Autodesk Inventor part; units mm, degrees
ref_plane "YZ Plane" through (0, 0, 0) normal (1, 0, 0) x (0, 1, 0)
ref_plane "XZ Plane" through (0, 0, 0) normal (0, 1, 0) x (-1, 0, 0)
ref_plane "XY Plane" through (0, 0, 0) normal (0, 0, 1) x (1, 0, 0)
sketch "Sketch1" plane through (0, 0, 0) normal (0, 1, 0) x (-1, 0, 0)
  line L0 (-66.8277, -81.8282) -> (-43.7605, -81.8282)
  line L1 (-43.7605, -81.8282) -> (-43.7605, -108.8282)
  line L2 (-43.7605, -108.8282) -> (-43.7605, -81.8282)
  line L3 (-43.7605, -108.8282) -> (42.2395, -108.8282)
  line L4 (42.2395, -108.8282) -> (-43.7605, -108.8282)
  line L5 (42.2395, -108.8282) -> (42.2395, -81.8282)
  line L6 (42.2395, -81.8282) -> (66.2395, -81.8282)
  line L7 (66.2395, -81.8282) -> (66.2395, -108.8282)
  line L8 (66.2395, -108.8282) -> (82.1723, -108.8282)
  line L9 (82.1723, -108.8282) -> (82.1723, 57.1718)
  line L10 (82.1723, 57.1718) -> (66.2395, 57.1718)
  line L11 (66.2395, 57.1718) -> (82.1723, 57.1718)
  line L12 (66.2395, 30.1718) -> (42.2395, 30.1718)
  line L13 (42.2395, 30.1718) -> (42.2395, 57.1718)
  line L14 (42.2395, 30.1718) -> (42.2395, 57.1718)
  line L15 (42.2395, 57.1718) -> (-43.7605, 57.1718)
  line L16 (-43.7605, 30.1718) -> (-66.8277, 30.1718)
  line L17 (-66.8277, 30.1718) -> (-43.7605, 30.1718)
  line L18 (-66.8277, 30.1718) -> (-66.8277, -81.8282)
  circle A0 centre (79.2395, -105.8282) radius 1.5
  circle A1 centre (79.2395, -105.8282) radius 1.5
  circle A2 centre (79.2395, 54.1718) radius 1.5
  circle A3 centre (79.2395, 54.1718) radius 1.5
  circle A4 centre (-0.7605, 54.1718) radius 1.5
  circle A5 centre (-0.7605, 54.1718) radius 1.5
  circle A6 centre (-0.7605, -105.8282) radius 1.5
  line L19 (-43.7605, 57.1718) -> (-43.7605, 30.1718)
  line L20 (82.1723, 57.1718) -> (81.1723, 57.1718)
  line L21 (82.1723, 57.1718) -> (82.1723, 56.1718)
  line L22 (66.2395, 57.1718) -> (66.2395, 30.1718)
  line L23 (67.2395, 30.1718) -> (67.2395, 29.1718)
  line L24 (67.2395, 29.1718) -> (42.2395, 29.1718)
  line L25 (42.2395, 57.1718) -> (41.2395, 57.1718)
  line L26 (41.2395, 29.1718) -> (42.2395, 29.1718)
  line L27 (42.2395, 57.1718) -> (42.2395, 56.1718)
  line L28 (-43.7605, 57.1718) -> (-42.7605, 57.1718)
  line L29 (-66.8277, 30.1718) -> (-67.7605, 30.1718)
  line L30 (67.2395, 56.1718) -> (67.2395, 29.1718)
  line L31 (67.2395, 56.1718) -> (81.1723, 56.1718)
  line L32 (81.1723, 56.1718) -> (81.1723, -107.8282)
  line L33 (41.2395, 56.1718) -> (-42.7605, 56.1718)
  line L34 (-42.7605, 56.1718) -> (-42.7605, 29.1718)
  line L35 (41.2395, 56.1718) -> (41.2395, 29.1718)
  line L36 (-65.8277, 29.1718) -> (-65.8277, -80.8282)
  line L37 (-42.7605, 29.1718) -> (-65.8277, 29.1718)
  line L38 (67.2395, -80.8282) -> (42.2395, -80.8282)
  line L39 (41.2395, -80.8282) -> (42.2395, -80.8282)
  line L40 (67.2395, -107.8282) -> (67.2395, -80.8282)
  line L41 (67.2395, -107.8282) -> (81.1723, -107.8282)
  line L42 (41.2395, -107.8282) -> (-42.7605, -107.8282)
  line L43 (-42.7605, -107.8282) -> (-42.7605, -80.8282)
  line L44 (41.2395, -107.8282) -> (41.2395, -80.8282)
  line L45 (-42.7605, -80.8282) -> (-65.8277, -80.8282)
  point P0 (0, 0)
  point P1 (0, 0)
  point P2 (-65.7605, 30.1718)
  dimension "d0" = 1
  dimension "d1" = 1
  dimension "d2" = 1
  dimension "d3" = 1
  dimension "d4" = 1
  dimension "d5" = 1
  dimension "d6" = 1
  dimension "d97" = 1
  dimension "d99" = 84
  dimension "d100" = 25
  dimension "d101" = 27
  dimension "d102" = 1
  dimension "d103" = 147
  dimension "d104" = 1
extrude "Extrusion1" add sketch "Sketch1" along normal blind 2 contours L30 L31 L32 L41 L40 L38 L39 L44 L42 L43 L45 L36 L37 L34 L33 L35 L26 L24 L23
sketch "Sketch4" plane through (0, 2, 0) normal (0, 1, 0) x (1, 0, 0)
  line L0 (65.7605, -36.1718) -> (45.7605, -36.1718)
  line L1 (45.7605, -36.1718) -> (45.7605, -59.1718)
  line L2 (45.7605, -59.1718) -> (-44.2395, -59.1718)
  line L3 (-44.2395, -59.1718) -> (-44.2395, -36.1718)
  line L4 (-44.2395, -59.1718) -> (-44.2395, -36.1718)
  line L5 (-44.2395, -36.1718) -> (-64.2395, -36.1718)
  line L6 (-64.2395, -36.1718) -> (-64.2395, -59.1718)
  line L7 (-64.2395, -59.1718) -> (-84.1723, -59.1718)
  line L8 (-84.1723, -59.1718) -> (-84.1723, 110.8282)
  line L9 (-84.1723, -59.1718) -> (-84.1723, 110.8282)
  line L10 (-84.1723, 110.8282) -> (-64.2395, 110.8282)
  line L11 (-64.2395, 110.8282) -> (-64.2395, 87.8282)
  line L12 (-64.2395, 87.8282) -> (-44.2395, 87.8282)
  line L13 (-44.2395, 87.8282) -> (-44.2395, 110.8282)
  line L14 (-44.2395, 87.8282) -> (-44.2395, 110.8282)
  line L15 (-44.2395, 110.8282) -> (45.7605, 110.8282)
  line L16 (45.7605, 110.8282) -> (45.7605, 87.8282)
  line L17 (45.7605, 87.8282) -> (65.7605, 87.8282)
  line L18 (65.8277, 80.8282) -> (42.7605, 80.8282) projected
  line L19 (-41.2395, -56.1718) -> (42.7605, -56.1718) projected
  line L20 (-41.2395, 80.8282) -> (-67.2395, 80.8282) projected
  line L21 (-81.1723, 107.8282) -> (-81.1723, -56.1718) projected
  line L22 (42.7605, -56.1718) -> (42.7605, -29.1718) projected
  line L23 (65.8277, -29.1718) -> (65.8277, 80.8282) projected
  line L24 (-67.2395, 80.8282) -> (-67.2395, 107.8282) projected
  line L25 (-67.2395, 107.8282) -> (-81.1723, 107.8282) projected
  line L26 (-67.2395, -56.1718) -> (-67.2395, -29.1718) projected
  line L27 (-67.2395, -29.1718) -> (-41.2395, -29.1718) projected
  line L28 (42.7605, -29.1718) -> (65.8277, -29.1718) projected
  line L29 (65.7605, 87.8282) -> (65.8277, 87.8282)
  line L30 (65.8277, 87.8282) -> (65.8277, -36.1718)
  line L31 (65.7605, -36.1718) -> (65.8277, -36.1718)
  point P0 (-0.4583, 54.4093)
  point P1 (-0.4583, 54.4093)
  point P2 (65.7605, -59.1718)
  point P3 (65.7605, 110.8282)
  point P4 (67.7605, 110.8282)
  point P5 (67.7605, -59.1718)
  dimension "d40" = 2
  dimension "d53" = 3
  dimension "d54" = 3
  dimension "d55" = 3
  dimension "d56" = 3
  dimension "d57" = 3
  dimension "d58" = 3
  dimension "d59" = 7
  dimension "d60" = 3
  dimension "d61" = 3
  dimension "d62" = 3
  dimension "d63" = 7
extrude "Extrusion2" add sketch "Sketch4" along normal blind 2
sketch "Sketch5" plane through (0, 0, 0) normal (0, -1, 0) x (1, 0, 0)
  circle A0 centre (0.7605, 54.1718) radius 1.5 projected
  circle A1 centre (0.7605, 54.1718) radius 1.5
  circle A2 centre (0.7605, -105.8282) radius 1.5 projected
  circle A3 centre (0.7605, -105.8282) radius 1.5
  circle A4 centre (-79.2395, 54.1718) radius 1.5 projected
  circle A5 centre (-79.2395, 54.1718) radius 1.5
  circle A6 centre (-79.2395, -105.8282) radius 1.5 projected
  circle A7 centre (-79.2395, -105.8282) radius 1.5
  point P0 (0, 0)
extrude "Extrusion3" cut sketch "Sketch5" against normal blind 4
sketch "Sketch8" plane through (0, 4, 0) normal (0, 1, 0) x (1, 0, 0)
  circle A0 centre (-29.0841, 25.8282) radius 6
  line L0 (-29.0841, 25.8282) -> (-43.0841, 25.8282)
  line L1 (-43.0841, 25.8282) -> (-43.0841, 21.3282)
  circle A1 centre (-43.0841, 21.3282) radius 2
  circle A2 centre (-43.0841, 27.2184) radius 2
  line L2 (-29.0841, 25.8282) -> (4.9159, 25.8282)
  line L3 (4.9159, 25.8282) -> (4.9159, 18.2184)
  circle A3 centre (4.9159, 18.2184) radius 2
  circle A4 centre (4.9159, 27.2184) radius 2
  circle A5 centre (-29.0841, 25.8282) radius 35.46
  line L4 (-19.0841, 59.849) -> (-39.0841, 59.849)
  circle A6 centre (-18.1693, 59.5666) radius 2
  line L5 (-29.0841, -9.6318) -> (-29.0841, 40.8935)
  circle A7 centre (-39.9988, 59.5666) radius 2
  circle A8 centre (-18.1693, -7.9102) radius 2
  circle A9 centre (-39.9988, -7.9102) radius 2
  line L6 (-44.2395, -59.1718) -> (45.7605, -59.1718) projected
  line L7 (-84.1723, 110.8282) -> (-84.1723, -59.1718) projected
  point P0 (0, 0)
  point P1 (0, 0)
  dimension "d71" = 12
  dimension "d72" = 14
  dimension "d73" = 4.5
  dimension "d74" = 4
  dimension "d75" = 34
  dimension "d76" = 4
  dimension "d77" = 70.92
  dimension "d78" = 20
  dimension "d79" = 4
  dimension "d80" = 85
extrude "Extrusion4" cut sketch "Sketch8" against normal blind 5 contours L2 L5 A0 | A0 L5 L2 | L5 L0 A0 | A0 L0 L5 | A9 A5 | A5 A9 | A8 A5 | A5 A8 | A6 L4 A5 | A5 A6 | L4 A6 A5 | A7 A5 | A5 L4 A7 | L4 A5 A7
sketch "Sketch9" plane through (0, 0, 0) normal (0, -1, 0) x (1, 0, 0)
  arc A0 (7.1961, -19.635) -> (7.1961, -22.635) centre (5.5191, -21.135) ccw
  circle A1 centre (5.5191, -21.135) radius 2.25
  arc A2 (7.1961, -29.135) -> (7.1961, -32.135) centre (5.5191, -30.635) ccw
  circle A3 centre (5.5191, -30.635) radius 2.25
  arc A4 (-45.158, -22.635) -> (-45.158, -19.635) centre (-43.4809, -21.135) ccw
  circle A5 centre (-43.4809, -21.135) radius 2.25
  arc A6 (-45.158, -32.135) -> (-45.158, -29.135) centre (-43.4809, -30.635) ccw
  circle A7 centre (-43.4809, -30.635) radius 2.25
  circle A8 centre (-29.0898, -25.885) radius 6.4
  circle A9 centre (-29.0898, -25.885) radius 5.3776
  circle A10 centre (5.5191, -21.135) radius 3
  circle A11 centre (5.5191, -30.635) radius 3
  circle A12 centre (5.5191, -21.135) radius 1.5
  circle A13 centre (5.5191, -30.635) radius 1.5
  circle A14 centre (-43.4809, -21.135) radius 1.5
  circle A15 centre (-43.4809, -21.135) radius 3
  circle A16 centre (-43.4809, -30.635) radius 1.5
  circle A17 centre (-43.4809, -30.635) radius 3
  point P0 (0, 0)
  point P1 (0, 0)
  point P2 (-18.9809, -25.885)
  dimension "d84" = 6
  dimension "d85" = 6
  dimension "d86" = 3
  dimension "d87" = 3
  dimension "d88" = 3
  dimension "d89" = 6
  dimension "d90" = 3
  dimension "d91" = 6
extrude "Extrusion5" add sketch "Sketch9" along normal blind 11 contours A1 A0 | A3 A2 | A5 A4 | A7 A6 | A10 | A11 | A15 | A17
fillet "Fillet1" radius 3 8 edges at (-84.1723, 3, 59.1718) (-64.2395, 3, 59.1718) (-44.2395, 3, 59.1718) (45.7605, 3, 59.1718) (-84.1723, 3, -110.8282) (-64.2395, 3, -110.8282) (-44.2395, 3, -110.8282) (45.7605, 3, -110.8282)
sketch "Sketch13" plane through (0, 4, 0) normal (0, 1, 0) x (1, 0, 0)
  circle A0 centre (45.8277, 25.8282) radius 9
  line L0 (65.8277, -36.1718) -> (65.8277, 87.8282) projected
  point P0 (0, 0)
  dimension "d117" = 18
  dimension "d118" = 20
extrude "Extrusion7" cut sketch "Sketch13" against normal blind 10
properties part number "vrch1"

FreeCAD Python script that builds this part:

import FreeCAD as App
import Part
import Sketcher
from FreeCAD import Vector
Q = App.Units.Quantity


def edges_at(feature, points):
    """Names of the edges that pass closest to the given points."""
    edges = feature.Shape.Edges
    near = lambda p: min(range(len(edges)), key=lambda i: edges[i].distToShape(Part.Vertex(*p))[0])
    return sorted({f"Edge{near(p) + 1}" for p in points})


def add_polygon(sketch, points):
    """Adds a closed chain of lines whose ends are joined by coincident constraints."""
    first, n = sketch.GeometryCount, len(points)
    for a, b in zip(points, points[1:] + points[:1]):
        sketch.addGeometry(Part.LineSegment(App.Vector(*a, 0), App.Vector(*b, 0)), False)
    for i in range(n):
        sketch.addConstraint(Sketcher.Constraint("Coincident", first + i, 2, first + (i + 1) % n, 1))

doc = App.newDocument("Part")
body = doc.addObject("PartDesign::Body", "Body")

# Sketch on XZ plane
sketch1 = body.newObject("Sketcher::SketchObject", "Sketch")
sketch1.AttachmentSupport = (doc.getObject("XZ_Plane"), [""])
sketch1.MapMode = "FlatFace"
add_polygon(sketch1, [(-67.2395, 56.1718), (-67.2395, 29.1718), (-41.2395, 29.1718), (-41.2395, 56.1718), (42.7605, 56.1718), (42.7605, 29.1718), (65.8277, 29.1718), (65.8277, -80.8282), (42.7605, -80.8282), (42.7605, -107.8282), (-41.2395, -107.8282), (-41.2395, -80.8282), (-67.2395, -80.8282), (-67.2395, -107.8282), (-81.1723, -107.8282), (-81.1723, 56.1718)])  # lines 0-15
sketch1.addGeometry(Part.Circle(Vector(0.7605, -105.8282, 0), Vector(0, 0, 1), 1.5), False)  # 16
sketch1.addGeometry(Part.Circle(Vector(-79.2395, -105.8282, 0), Vector(0, 0, 1), 1.5), False)  # 17
sketch1.addGeometry(Part.Circle(Vector(0.7605, 54.1718, 0), Vector(0, 0, 1), 1.5), False)  # 18
sketch1.addGeometry(Part.Circle(Vector(-79.2395, 54.1718, 0), Vector(0, 0, 1), 1.5), False)  # 19
sketch1.addConstraint(Sketcher.Constraint("Vertical", 0))
sketch1.addConstraint(Sketcher.Constraint("Horizontal", 1))
sketch1.addConstraint(Sketcher.Constraint("Vertical", 2))
sketch1.addConstraint(Sketcher.Constraint("Horizontal", 3))
sketch1.addConstraint(Sketcher.Constraint("Vertical", 4))
sketch1.addConstraint(Sketcher.Constraint("Horizontal", 5))
sketch1.addConstraint(Sketcher.Constraint("Vertical", 6))
sketch1.addConstraint(Sketcher.Constraint("Horizontal", 7))
sketch1.addConstraint(Sketcher.Constraint("Vertical", 8))
sketch1.addConstraint(Sketcher.Constraint("Horizontal", 9))
sketch1.addConstraint(Sketcher.Constraint("Vertical", 10))
sketch1.addConstraint(Sketcher.Constraint("Horizontal", 11))
sketch1.addConstraint(Sketcher.Constraint("Vertical", 12))
sketch1.addConstraint(Sketcher.Constraint("Horizontal", 13))
sketch1.addConstraint(Sketcher.Constraint("Vertical", 14))
sketch1.addConstraint(Sketcher.Constraint("Horizontal", 15))
sketch1.addConstraint(Sketcher.Constraint("Equal", 16, 17))
sketch1.addConstraint(Sketcher.Constraint("Equal", 17, 18))
sketch1.addConstraint(Sketcher.Constraint("Equal", 18, 19))
sketch1.addConstraint(Sketcher.Constraint("Horizontal", 16, 3, 17, 3))
sketch1.addConstraint(Sketcher.Constraint("Horizontal", 18, 3, 19, 3))
sketch1.addConstraint(Sketcher.Constraint("Horizontal", 1, 2, 4, 2))
sketch1.addConstraint(Sketcher.Constraint("Horizontal", 7, 2, 10, 2))
sketch1.addConstraint(Sketcher.Constraint("Horizontal", 9, 2, 12, 2))
sketch1.addConstraint(Sketcher.Constraint("Horizontal", 3, 2, 14, 2))
sketch1.addConstraint(Sketcher.Constraint("Vertical", 16, 3, 18, 3))
sketch1.addConstraint(Sketcher.Constraint("Vertical", 17, 3, 19, 3))
sketch1.addConstraint(Sketcher.Constraint("Vertical", 4, 2, 7, 2))
sketch1.addConstraint(Sketcher.Constraint("Vertical", 2, 2, 9, 2))
sketch1.addConstraint(Sketcher.Constraint("Vertical", 0, 2, 11, 2))
sketch1.addConstraint(Sketcher.Constraint("Equal", 4, 8))
sketch1.addConstraint(Sketcher.Constraint("DistanceX", 3, 1, 3, 2, Q("84 mm")))
sketch1.addConstraint(Sketcher.Constraint("DistanceY", 0, 2, 0, 1, Q("27 mm")))
sketch1.addConstraint(Sketcher.Constraint("Diameter", 16, Q("3 mm")))
sketch1.addConstraint(Sketcher.Constraint("DistanceY", 0, 2, 19, 3, Q("25 mm")))
sketch1.addConstraint(Sketcher.Constraint("DistanceY", 16, 3, 6, 2, Q("25 mm")))
sketch1.addConstraint(Sketcher.Constraint("DistanceX", 1, 1, 1, 2, Q("26 mm")))
sketch1.addConstraint(Sketcher.Constraint("DistanceY", 6, 2, 6, 1, Q("110 mm")))
sketch1.addConstraint(Sketcher.Constraint("DistanceX", 17, 3, 16, 3, Q("80 mm")))
sketch1.addConstraint(Sketcher.Constraint("DistanceX", 19, 3, 0, 2, Q("12 mm")))
sketch1.addConstraint(Sketcher.Constraint("DistanceX", 5, 1, 5, 2, Q("23.0672 mm")))
sketch1.addConstraint(Sketcher.Constraint("DistanceX", 13, 2, 13, 1, Q("13.9328 mm")))
sketch1.addConstraint(Sketcher.Constraint("DistanceX", -1, 1, 16, 3, Q("0.7605 mm")))
sketch1.addConstraint(Sketcher.Constraint("DistanceY", 16, 3, -1, 1, Q("105.8282 mm")))
pad1 = body.newObject("PartDesign::Pad", "Pad")
pad1.Profile = sketch1
pad1.Length = 2
pad1.Reversed = True

# Sketch on XZ plane
sketch2 = body.newObject("Sketcher::SketchObject", "Sketch001")
sketch2.AttachmentSupport = (doc.getObject("XZ_Plane"), [""])
sketch2.MapMode = "FlatFace"
sketch2.AttachmentOffset = App.Placement(Vector(0, 0, -2), App.Rotation())
add_polygon(sketch2, [(45.7605, 36.1718), (65.8277, 36.1718), (65.8277, -87.8282), (45.7605, -87.8282), (45.7605, -110.8282), (-44.2395, -110.8282), (-44.2395, -87.8282), (-64.2395, -87.8282), (-64.2395, -110.8282), (-84.1723, -110.8282), (-84.1723, 59.1718), (-64.2395, 59.1718), (-64.2395, 36.1718), (-44.2395, 36.1718), (-44.2395, 59.1718), (45.7605, 59.1718)])  # lines 0-15
sketch2.addConstraint(Sketcher.Constraint("Horizontal", 0))
sketch2.addConstraint(Sketcher.Constraint("Vertical", 1))
sketch2.addConstraint(Sketcher.Constraint("Horizontal", 2))
sketch2.addConstraint(Sketcher.Constraint("Vertical", 3))
sketch2.addConstraint(Sketcher.Constraint("Horizontal", 4))
sketch2.addConstraint(Sketcher.Constraint("Vertical", 5))
sketch2.addConstraint(Sketcher.Constraint("Horizontal", 6))
sketch2.addConstraint(Sketcher.Constraint("Vertical", 7))
sketch2.addConstraint(Sketcher.Constraint("Horizontal", 8))
sketch2.addConstraint(Sketcher.Constraint("Vertical", 9))
sketch2.addConstraint(Sketcher.Constraint("Horizontal", 10))
sketch2.addConstraint(Sketcher.Constraint("Vertical", 11))
sketch2.addConstraint(Sketcher.Constraint("Horizontal", 12))
sketch2.addConstraint(Sketcher.Constraint("Vertical", 13))
sketch2.addConstraint(Sketcher.Constraint("Horizontal", 14))
sketch2.addConstraint(Sketcher.Constraint("Vertical", 15))
sketch2.addConstraint(Sketcher.Constraint("Horizontal", 2, 2, 5, 2))
sketch2.addConstraint(Sketcher.Constraint("Horizontal", 4, 2, 7, 2))
sketch2.addConstraint(Sketcher.Constraint("Horizontal", 0, 2, 11, 2))
sketch2.addConstraint(Sketcher.Constraint("Horizontal", 10, 2, 13, 2))
sketch2.addConstraint(Sketcher.Constraint("Vertical", 7, 2, 10, 2))
sketch2.addConstraint(Sketcher.Constraint("Vertical", 5, 2, 12, 2))
sketch2.addConstraint(Sketcher.Constraint("Vertical", 3, 2, 14, 2))
sketch2.addConstraint(Sketcher.Constraint("Equal", 7, 11))
sketch2.addConstraint(Sketcher.Constraint("DistanceX", 4, 2, 4, 1, Q("90 mm")))
sketch2.addConstraint(Sketcher.Constraint("DistanceX", 6, 2, 6, 1, Q("20 mm")))
sketch2.addConstraint(Sketcher.Constraint("DistanceY", 1, 2, 1, 1, Q("124 mm")))
sketch2.addConstraint(Sketcher.Constraint("DistanceY", 3, 2, 3, 1, Q("23 mm")))
sketch2.addConstraint(Sketcher.Constraint("DistanceX", 9, 2, 0, 2, Q("150 mm")))
sketch2.addConstraint(Sketcher.Constraint("DistanceX", 0, 1, 0, 2, Q("20.0672 mm")))
sketch2.addConstraint(Sketcher.Constraint("DistanceX", -1, 1, 0, 2, Q("65.8277 mm")))
sketch2.addConstraint(Sketcher.Constraint("DistanceY", -1, 1, 0, 2, Q("36.1718 mm")))
pad2 = body.newObject("PartDesign::Pad", "Pad001")
pad2.Profile = sketch2
pad2.Length = 2
pad2.Reversed = True

# Sketch on XZ plane
sketch3 = body.newObject("Sketcher::SketchObject", "Sketch002")
sketch3.AttachmentSupport = (doc.getObject("XZ_Plane"), [""])
sketch3.MapMode = "FlatFace"
sketch3.addGeometry(Part.Circle(Vector(0.7605, 54.1718, 0), Vector(0, 0, 1), 1.5), False)
sketch3.addGeometry(Part.Circle(Vector(0.7605, -105.8282, 0), Vector(0, 0, 1), 1.5), False)
sketch3.addGeometry(Part.Circle(Vector(-79.2395, 54.1718, 0), Vector(0, 0, 1), 1.5), False)
sketch3.addGeometry(Part.Circle(Vector(-79.2395, -105.8282, 0), Vector(0, 0, 1), 1.5), False)
sketch3.addConstraint(Sketcher.Constraint("Equal", 0, 1))
sketch3.addConstraint(Sketcher.Constraint("Equal", 1, 2))
sketch3.addConstraint(Sketcher.Constraint("Equal", 2, 3))
sketch3.addConstraint(Sketcher.Constraint("Horizontal", 0, 3, 2, 3))
sketch3.addConstraint(Sketcher.Constraint("Horizontal", 1, 3, 3, 3))
sketch3.addConstraint(Sketcher.Constraint("Vertical", 0, 3, 1, 3))
sketch3.addConstraint(Sketcher.Constraint("Vertical", 2, 3, 3, 3))
sketch3.addConstraint(Sketcher.Constraint("Diameter", 0, Q("3 mm")))
sketch3.addConstraint(Sketcher.Constraint("DistanceY", 1, 3, 0, 3, Q("160 mm")))
sketch3.addConstraint(Sketcher.Constraint("DistanceX", 2, 3, 0, 3, Q("80 mm")))
sketch3.addConstraint(Sketcher.Constraint("DistanceX", -1, 1, 0, 3, Q("0.7605 mm")))
sketch3.addConstraint(Sketcher.Constraint("DistanceY", -1, 1, 0, 3, Q("54.1718 mm")))
pocket1 = body.newObject("PartDesign::Pocket", "Pocket")
pocket1.Profile = sketch3
pocket1.Length = 4

# Sketch on XZ plane
sketch4 = body.newObject("Sketcher::SketchObject", "Sketch003")
sketch4.AttachmentSupport = (doc.getObject("XZ_Plane"), [""])
sketch4.MapMode = "FlatFace"
sketch4.AttachmentOffset = App.Placement(Vector(0, 0, -4), App.Rotation())
sketch4.addGeometry(Part.Circle(Vector(-29.0841, -25.8282, 0), Vector(0, 0, 1), 6), False)
sketch4.addGeometry(Part.Circle(Vector(-39.9988, 7.9102, 0), Vector(0, 0, 1), 2), False)
sketch4.addGeometry(Part.Circle(Vector(-18.1693, 7.9102, 0), Vector(0, 0, 1), 2), False)
sketch4.addGeometry(Part.Circle(Vector(-18.1693, -59.5666, 0), Vector(0, 0, 1), 2), False)
sketch4.addGeometry(Part.Circle(Vector(-39.9988, -59.5666, 0), Vector(0, 0, 1), 2), False)
sketch4.addConstraint(Sketcher.Constraint("Equal", 1, 2))
sketch4.addConstraint(Sketcher.Constraint("Equal", 2, 3))
sketch4.addConstraint(Sketcher.Constraint("Equal", 3, 4))
sketch4.addConstraint(Sketcher.Constraint("Horizontal", 1, 3, 2, 3))
sketch4.addConstraint(Sketcher.Constraint("Horizontal", 3, 3, 4, 3))
sketch4.addConstraint(Sketcher.Constraint("Vertical", 2, 3, 3, 3))
sketch4.addConstraint(Sketcher.Constraint("Vertical", 1, 3, 4, 3))
sketch4.addConstraint(Sketcher.Constraint("Diameter", 0, Q("12 mm")))
sketch4.addConstraint(Sketcher.Constraint("Diameter", 1, Q("4 mm")))
sketch4.addConstraint(Sketcher.Constraint("DistanceX", 0, 3, -1, 1, Q("29.084 mm")))
sketch4.addConstraint(Sketcher.Constraint("DistanceY", 0, 3, -1, 1, Q("25.8282 mm")))
sketch4.addConstraint(Sketcher.Constraint("DistanceX", 1, 3, -1, 1, Q("39.9988 mm")))
sketch4.addConstraint(Sketcher.Constraint("DistanceY", -1, 1, 1, 3, Q("7.9102 mm")))
sketch4.addConstraint(Sketcher.Constraint("DistanceX", 2, 3, -1, 1, Q("18.1693 mm")))
sketch4.addConstraint(Sketcher.Constraint("DistanceY", 3, 3, -1, 1, Q("59.5666 mm")))
pocket2 = body.newObject("PartDesign::Pocket", "Pocket001")
pocket2.Profile = sketch4
pocket2.Length = 5
pocket2.Reversed = True

# Sketch on XZ plane
sketch5 = body.newObject("Sketcher::SketchObject", "Sketch004")
sketch5.AttachmentSupport = (doc.getObject("XZ_Plane"), [""])
sketch5.MapMode = "FlatFace"
sketch5.addGeometry(Part.Circle(Vector(5.5191, -21.135, 0), Vector(0, 0, 1), 3), False)
sketch5.addGeometry(Part.Circle(Vector(5.5191, -21.135, 0), Vector(0, 0, 1), 1.5), False)
sketch5.addGeometry(Part.Circle(Vector(5.5191, -30.635, 0), Vector(0, 0, 1), 3), False)
sketch5.addGeometry(Part.Circle(Vector(5.5191, -30.635, 0), Vector(0, 0, 1), 1.5), False)
sketch5.addGeometry(Part.Circle(Vector(-43.4809, -21.135, 0), Vector(0, 0, 1), 3), False)
sketch5.addGeometry(Part.Circle(Vector(-43.4809, -21.135, 0), Vector(0, 0, 1), 1.5), False)
sketch5.addGeometry(Part.Circle(Vector(-43.4809, -30.635, 0), Vector(0, 0, 1), 3), False)
sketch5.addGeometry(Part.Circle(Vector(-43.4809, -30.635, 0), Vector(0, 0, 1), 1.5), False)
sketch5.addConstraint(Sketcher.Constraint("Coincident", 1, 3, 0, 3))
sketch5.addConstraint(Sketcher.Constraint("Coincident", 3, 3, 2, 3))
sketch5.addConstraint(Sketcher.Constraint("Coincident", 5, 3, 4, 3))
sketch5.addConstraint(Sketcher.Constraint("Coincident", 7, 3, 6, 3))
sketch5.addConstraint(Sketcher.Constraint("Equal", 0, 2))
sketch5.addConstraint(Sketcher.Constraint("Equal", 1, 3))
sketch5.addConstraint(Sketcher.Constraint("Equal", 2, 4))
sketch5.addConstraint(Sketcher.Constraint("Equal", 3, 5))
sketch5.addConstraint(Sketcher.Constraint("Equal", 4, 6))
sketch5.addConstraint(Sketcher.Constraint("Equal", 5, 7))
sketch5.addConstraint(Sketcher.Constraint("Horizontal", 1, 3, 4, 3))
sketch5.addConstraint(Sketcher.Constraint("Horizontal", 3, 3, 6, 3))
sketch5.addConstraint(Sketcher.Constraint("Vertical", 1, 3, 2, 3))
sketch5.addConstraint(Sketcher.Constraint("Vertical", 5, 3, 6, 3))
sketch5.addConstraint(Sketcher.Constraint("Diameter", 0, Q("6 mm")))
sketch5.addConstraint(Sketcher.Constraint("Diameter", 1, Q("3 mm")))
sketch5.addConstraint(Sketcher.Constraint("DistanceX", 4, 3, 0, 3, Q("49 mm")))
sketch5.addConstraint(Sketcher.Constraint("DistanceY", 2, 3, 0, 3, Q("9.5 mm")))
sketch5.addConstraint(Sketcher.Constraint("DistanceX", -1, 1, 0, 3, Q("5.519 mm")))
sketch5.addConstraint(Sketcher.Constraint("DistanceY", 0, 3, -1, 1, Q("21.135 mm")))
pad3 = body.newObject("PartDesign::Pad", "Pad002")
pad3.Profile = sketch5
pad3.Length = 11
doc.recompute()

fillet = body.newObject("PartDesign::Fillet", "Fillet")
fillet.Base = (pad3, edges_at(pad3, [
    (-84.172, 3, 59.172),
    (-64.24, 3, 59.172),
    (-44.239, 3, 59.172),
    (45.761, 3, 59.172),
    (-84.172, 3, -110.828),
    (-64.24, 3, -110.828),
    (-44.239, 3, -110.828),
    (45.761, 3, -110.828),
]))
fillet.Radius = 3

# Sketch on XZ plane
sketch6 = body.newObject("Sketcher::SketchObject", "Sketch005")
sketch6.AttachmentSupport = (doc.getObject("XZ_Plane"), [""])
sketch6.MapMode = "FlatFace"
sketch6.AttachmentOffset = App.Placement(Vector(0, 0, -4), App.Rotation())
sketch6.addGeometry(Part.Circle(Vector(45.8277, -25.8282, 0), Vector(0, 0, 1), 9), False)
sketch6.addConstraint(Sketcher.Constraint("Diameter", 0, Q("18 mm")))
sketch6.addConstraint(Sketcher.Constraint("DistanceX", -1, 1, 0, 3, Q("45.8277 mm")))
sketch6.addConstraint(Sketcher.Constraint("DistanceY", 0, 3, -1, 1, Q("25.8282 mm")))
pocket3 = body.newObject("PartDesign::Pocket", "Pocket002")
pocket3.Profile = sketch6
pocket3.Length = 10
pocket3.Reversed = True

doc.recompute()
